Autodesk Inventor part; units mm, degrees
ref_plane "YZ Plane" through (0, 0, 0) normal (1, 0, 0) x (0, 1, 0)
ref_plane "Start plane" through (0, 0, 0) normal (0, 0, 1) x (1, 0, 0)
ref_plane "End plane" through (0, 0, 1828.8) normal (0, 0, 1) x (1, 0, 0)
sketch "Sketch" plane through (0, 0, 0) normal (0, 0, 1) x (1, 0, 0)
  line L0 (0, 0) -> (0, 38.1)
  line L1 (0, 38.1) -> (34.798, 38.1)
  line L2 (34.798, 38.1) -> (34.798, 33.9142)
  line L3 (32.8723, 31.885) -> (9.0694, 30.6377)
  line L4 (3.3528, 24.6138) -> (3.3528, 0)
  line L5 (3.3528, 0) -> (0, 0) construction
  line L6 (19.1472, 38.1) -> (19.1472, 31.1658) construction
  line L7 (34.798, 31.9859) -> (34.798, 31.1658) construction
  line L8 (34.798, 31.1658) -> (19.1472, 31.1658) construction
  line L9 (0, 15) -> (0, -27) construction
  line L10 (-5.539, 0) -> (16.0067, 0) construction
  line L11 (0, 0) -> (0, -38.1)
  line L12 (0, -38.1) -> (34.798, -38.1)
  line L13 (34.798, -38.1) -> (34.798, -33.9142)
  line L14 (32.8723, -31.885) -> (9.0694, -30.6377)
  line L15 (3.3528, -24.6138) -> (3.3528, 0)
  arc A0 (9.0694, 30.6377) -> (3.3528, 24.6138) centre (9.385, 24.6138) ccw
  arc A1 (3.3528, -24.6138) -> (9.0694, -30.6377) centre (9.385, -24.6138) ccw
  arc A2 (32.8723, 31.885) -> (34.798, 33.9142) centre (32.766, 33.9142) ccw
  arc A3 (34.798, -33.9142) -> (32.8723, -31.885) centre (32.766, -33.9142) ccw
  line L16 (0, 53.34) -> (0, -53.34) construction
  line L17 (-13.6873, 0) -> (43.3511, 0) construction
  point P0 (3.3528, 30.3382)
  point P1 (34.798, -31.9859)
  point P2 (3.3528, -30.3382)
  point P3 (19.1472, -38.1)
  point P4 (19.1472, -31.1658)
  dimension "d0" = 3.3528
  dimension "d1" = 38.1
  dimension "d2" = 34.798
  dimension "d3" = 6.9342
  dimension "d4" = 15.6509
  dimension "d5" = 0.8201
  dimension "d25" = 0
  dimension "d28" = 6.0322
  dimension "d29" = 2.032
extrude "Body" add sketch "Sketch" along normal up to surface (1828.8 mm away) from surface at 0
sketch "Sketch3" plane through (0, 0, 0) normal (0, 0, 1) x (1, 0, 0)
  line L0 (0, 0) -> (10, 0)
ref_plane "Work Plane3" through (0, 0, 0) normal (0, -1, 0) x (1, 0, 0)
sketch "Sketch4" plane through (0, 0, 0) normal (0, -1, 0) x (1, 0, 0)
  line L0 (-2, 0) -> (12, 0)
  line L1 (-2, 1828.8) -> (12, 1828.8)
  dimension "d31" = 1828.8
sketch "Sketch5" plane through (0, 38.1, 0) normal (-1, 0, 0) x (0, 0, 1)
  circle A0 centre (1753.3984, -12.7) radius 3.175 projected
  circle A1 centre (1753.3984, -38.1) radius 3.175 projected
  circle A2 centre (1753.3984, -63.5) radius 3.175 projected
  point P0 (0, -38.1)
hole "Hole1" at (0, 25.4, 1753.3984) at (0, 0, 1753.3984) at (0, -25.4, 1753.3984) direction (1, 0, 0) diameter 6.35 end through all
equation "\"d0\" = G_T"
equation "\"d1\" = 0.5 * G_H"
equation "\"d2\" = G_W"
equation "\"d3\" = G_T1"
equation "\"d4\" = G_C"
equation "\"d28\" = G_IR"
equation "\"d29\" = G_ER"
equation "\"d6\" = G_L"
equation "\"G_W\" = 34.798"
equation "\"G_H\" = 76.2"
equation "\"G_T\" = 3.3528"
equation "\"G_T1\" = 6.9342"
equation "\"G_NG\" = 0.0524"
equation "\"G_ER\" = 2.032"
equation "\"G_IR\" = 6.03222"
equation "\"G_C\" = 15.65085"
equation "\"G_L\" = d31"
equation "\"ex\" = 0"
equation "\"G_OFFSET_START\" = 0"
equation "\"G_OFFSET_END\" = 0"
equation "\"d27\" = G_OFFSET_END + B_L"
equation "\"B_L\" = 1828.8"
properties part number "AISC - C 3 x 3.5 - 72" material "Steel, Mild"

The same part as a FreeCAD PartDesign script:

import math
import FreeCAD as App
import Part
import Sketcher

V = App.Vector
Q = App.Units.Quantity

doc = App.newDocument("Part")
body = doc.addObject("PartDesign::Body", "Body")

# Sketch on XY plane
sketch1 = body.newObject("Sketcher::SketchObject", "Sketch")
sketch1.AttachmentSupport = (doc.getObject("XY_Plane"), [""])
sketch1.MapMode = "FlatFace"
sketch1.addGeometry(Part.LineSegment(V(0, 38.1, 0), V(0, -38.1, 0)), False)
sketch1.addGeometry(Part.LineSegment(V(0, -38.1, 0), V(34.798, -38.1, 0)), False)
sketch1.addGeometry(Part.LineSegment(V(34.798, -38.1, 0), V(34.798, -33.9142, 0)), False)
sketch1.addGeometry(Part.ArcOfCircle(Part.Circle(V(32.766, -33.9142, 0), V(0, 0, 1), 2.032), math.radians(0), math.radians(87.001292)), False)
sketch1.addGeometry(Part.LineSegment(V(32.8723, -31.885, 0), V(9.0694, -30.6377, 0)), False)
sketch1.addGeometry(Part.ArcOfCircle(Part.Circle(V(9.385, -24.6138, 0), V(0, 0, 1), 6.0322), math.radians(180), math.radians(267.000941)), False)
sketch1.addGeometry(Part.LineSegment(V(3.3528, -24.6138, 0), V(3.3528, 24.6138, 0)), False)
sketch1.addGeometry(Part.ArcOfCircle(Part.Circle(V(9.385, 24.6138, 0), V(0, 0, 1), 6.032162), math.radians(92.999059), math.radians(180)), False)
sketch1.addGeometry(Part.LineSegment(V(9.0694, 30.6377, 0), V(32.8723, 31.885, 0)), False)
sketch1.addGeometry(Part.ArcOfCircle(Part.Circle(V(32.766, 33.9142, 0), V(0, 0, 1), 2.031982), math.radians(-87.001292), math.radians(0)), False)
sketch1.addGeometry(Part.LineSegment(V(34.798, 33.9142, 0), V(34.798, 38.1, 0)), False)
sketch1.addGeometry(Part.LineSegment(V(34.798, 38.1, 0), V(0, 38.1, 0)), False)
sketch1.addConstraint(Sketcher.Constraint("Coincident", 0, 2, 1, 1))
sketch1.addConstraint(Sketcher.Constraint("Coincident", 1, 2, 2, 1))
sketch1.addConstraint(Sketcher.Constraint("Tangent", 2, 2, 3, 1))
sketch1.addConstraint(Sketcher.Constraint("Tangent", 3, 2, 4, 1))
sketch1.addConstraint(Sketcher.Constraint("Tangent", 4, 2, 5, 2))
sketch1.addConstraint(Sketcher.Constraint("Tangent", 5, 1, 6, 1))
sketch1.addConstraint(Sketcher.Constraint("Tangent", 6, 2, 7, 2))
sketch1.addConstraint(Sketcher.Constraint("Tangent", 7, 1, 8, 1))
sketch1.addConstraint(Sketcher.Constraint("Tangent", 8, 2, 9, 1))
sketch1.addConstraint(Sketcher.Constraint("Tangent", 9, 2, 10, 1))
sketch1.addConstraint(Sketcher.Constraint("Coincident", 10, 2, 11, 1))
sketch1.addConstraint(Sketcher.Constraint("Coincident", 11, 2, 0, 1))
sketch1.addConstraint(Sketcher.Constraint("Vertical", 0))
sketch1.addConstraint(Sketcher.Constraint("Horizontal", 1))
sketch1.addConstraint(Sketcher.Constraint("Vertical", 2))
sketch1.addConstraint(Sketcher.Constraint("Vertical", 6))
sketch1.addConstraint(Sketcher.Constraint("Vertical", 10))
sketch1.addConstraint(Sketcher.Constraint("Horizontal", 11))
sketch1.addConstraint(Sketcher.Constraint("Equal", 5, 7))
sketch1.addConstraint(Sketcher.Constraint("Equal", 3, 9))
sketch1.addConstraint(Sketcher.Constraint("Symmetric", 0, 2, 11, 2, -1, 1))
sketch1.addConstraint(Sketcher.Constraint("Symmetric", 3, 3, 9, 3, -1))
sketch1.addConstraint(Sketcher.Constraint("Vertical", 4, 2, 7, 1))
sketch1.addConstraint(Sketcher.Constraint("Radius", 3, Q("0.08 in")))
sketch1.addConstraint(Sketcher.Constraint("DistanceX", 1, 1, 1, 2, Q("1.37 in")))
sketch1.addConstraint(Sketcher.Constraint("DistanceY", 0, 2, -1, 1, Q("1.5 in")))
sketch1.addConstraint(Sketcher.Constraint("Radius", 5, Q("0.2375 in")))
sketch1.addConstraint(Sketcher.Constraint("DistanceX", -1, 1, 5, 1, Q("0.132 in")))
sketch1.addConstraint(Sketcher.Constraint("Angle", 4, Q("177.0004 deg")))
sketch1.addConstraint(Sketcher.Constraint("DistanceY", 2, 1, 2, 2, Q("0.1648 in")))
pad1 = body.newObject("PartDesign::Pad", "Pad")
pad1.Profile = sketch1
pad1.Length = Q("72 in")

# Sketch on YZ plane
sketch2 = body.newObject("Sketcher::SketchObject", "Sketch001")
sketch2.AttachmentSupport = (doc.getObject("YZ_Plane"), [""])
sketch2.MapMode = "FlatFace"
sketch2.addGeometry(Part.Circle(V(25.4, 1753.3984, 0), V(0, 0, 1), 3.175), False)
sketch2.addGeometry(Part.Circle(V(0, 1753.3984, 0), V(0, 0, 1), 3.175), False)
sketch2.addGeometry(Part.Circle(V(-25.4, 1753.3984, 0), V(0, 0, 1), 3.175), False)
sketch2.addConstraint(Sketcher.Constraint("Equal", 0, 1))
sketch2.addConstraint(Sketcher.Constraint("Equal", 1, 2))
sketch2.addConstraint(Sketcher.Constraint("Symmetric", 0, 3, 2, 3, -2))
sketch2.addConstraint(Sketcher.Constraint("PointOnObject", 1, 3, -2))
sketch2.addConstraint(Sketcher.Constraint("Horizontal", 0, 3, 1, 3))
sketch2.addConstraint(Sketcher.Constraint("Diameter", 0, Q("0.25 in")))
sketch2.addConstraint(Sketcher.Constraint("DistanceX", -1, 1, 0, 3, Q("1 in")))
sketch2.addConstraint(Sketcher.Constraint("DistanceY", -1, 1, 0, 3, Q("1753.3984 mm")))
doc.recompute()
hole = body.newObject("PartDesign::Hole", "Hole")
hole.Profile = sketch2
hole.ThreadType = "None"
hole.Diameter = Q("0.25 in")
hole.DepthType = "ThroughAll"
hole.Reversed = True

doc.recompute()
